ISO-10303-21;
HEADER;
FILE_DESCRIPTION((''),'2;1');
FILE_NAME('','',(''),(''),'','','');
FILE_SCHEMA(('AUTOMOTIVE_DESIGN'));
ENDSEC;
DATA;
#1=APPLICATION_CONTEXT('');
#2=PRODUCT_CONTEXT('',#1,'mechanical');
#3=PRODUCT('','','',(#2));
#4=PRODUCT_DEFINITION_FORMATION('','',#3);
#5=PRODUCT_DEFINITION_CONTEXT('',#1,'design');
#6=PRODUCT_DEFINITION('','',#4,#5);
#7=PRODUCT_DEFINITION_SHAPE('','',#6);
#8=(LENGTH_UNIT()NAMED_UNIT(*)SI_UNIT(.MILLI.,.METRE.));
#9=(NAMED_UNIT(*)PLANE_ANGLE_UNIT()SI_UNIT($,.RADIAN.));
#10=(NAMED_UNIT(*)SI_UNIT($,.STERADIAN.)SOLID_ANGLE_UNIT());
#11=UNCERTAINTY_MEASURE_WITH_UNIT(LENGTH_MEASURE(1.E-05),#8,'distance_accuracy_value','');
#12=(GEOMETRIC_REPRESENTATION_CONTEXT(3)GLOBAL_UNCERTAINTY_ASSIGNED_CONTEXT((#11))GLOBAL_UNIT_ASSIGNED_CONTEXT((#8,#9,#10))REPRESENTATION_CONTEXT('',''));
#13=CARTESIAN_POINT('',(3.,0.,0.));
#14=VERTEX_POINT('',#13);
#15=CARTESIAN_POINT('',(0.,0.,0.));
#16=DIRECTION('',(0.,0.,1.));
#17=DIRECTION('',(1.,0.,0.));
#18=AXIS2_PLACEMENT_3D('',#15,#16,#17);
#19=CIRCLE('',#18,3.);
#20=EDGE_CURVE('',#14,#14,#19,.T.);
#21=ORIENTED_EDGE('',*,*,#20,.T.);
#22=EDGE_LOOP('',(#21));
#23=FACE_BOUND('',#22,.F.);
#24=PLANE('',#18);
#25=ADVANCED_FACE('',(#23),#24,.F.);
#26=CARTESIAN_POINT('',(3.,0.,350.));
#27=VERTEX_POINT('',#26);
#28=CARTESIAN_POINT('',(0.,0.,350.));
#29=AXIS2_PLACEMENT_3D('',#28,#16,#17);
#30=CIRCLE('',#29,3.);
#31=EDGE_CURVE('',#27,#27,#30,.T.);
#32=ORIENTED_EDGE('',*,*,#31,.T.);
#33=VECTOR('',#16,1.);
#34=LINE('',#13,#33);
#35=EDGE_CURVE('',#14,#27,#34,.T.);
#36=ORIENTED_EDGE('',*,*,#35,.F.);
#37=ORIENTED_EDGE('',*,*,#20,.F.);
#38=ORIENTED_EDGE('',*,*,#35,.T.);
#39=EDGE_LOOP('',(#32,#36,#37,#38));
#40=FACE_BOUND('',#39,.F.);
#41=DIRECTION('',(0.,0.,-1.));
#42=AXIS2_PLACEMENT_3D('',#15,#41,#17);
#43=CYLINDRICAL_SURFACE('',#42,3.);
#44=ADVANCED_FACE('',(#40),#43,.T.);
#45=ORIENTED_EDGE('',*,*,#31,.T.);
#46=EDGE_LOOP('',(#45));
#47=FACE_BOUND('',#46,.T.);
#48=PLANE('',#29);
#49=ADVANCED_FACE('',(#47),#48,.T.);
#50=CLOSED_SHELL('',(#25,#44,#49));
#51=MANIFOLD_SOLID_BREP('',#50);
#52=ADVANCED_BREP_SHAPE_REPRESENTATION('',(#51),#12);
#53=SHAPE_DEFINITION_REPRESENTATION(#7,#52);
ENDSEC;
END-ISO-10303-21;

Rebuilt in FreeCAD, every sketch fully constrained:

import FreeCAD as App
import Part
import Sketcher
from FreeCAD import Vector

doc = App.newDocument("Part")
body = doc.addObject("PartDesign::Body", "Body")

# Sketch on XY plane
sketch1 = body.newObject("Sketcher::SketchObject", "Sketch")
sketch1.AttachmentSupport = (doc.getObject("XY_Plane"), [""])
sketch1.MapMode = "FlatFace"
sketch1.addGeometry(Part.Circle(Vector(0, 0, 0), Vector(0, 0, 1), 3), False)
sketch1.addConstraint([
    Sketcher.Constraint("Coincident", 0, 3, -1, 1),
    Sketcher.Constraint("Diameter", 0, 6.0),
])
pad1 = body.newObject("PartDesign::Pad", "Pad")
pad1.Profile = sketch1
pad1.Length = 350

doc.recompute()
